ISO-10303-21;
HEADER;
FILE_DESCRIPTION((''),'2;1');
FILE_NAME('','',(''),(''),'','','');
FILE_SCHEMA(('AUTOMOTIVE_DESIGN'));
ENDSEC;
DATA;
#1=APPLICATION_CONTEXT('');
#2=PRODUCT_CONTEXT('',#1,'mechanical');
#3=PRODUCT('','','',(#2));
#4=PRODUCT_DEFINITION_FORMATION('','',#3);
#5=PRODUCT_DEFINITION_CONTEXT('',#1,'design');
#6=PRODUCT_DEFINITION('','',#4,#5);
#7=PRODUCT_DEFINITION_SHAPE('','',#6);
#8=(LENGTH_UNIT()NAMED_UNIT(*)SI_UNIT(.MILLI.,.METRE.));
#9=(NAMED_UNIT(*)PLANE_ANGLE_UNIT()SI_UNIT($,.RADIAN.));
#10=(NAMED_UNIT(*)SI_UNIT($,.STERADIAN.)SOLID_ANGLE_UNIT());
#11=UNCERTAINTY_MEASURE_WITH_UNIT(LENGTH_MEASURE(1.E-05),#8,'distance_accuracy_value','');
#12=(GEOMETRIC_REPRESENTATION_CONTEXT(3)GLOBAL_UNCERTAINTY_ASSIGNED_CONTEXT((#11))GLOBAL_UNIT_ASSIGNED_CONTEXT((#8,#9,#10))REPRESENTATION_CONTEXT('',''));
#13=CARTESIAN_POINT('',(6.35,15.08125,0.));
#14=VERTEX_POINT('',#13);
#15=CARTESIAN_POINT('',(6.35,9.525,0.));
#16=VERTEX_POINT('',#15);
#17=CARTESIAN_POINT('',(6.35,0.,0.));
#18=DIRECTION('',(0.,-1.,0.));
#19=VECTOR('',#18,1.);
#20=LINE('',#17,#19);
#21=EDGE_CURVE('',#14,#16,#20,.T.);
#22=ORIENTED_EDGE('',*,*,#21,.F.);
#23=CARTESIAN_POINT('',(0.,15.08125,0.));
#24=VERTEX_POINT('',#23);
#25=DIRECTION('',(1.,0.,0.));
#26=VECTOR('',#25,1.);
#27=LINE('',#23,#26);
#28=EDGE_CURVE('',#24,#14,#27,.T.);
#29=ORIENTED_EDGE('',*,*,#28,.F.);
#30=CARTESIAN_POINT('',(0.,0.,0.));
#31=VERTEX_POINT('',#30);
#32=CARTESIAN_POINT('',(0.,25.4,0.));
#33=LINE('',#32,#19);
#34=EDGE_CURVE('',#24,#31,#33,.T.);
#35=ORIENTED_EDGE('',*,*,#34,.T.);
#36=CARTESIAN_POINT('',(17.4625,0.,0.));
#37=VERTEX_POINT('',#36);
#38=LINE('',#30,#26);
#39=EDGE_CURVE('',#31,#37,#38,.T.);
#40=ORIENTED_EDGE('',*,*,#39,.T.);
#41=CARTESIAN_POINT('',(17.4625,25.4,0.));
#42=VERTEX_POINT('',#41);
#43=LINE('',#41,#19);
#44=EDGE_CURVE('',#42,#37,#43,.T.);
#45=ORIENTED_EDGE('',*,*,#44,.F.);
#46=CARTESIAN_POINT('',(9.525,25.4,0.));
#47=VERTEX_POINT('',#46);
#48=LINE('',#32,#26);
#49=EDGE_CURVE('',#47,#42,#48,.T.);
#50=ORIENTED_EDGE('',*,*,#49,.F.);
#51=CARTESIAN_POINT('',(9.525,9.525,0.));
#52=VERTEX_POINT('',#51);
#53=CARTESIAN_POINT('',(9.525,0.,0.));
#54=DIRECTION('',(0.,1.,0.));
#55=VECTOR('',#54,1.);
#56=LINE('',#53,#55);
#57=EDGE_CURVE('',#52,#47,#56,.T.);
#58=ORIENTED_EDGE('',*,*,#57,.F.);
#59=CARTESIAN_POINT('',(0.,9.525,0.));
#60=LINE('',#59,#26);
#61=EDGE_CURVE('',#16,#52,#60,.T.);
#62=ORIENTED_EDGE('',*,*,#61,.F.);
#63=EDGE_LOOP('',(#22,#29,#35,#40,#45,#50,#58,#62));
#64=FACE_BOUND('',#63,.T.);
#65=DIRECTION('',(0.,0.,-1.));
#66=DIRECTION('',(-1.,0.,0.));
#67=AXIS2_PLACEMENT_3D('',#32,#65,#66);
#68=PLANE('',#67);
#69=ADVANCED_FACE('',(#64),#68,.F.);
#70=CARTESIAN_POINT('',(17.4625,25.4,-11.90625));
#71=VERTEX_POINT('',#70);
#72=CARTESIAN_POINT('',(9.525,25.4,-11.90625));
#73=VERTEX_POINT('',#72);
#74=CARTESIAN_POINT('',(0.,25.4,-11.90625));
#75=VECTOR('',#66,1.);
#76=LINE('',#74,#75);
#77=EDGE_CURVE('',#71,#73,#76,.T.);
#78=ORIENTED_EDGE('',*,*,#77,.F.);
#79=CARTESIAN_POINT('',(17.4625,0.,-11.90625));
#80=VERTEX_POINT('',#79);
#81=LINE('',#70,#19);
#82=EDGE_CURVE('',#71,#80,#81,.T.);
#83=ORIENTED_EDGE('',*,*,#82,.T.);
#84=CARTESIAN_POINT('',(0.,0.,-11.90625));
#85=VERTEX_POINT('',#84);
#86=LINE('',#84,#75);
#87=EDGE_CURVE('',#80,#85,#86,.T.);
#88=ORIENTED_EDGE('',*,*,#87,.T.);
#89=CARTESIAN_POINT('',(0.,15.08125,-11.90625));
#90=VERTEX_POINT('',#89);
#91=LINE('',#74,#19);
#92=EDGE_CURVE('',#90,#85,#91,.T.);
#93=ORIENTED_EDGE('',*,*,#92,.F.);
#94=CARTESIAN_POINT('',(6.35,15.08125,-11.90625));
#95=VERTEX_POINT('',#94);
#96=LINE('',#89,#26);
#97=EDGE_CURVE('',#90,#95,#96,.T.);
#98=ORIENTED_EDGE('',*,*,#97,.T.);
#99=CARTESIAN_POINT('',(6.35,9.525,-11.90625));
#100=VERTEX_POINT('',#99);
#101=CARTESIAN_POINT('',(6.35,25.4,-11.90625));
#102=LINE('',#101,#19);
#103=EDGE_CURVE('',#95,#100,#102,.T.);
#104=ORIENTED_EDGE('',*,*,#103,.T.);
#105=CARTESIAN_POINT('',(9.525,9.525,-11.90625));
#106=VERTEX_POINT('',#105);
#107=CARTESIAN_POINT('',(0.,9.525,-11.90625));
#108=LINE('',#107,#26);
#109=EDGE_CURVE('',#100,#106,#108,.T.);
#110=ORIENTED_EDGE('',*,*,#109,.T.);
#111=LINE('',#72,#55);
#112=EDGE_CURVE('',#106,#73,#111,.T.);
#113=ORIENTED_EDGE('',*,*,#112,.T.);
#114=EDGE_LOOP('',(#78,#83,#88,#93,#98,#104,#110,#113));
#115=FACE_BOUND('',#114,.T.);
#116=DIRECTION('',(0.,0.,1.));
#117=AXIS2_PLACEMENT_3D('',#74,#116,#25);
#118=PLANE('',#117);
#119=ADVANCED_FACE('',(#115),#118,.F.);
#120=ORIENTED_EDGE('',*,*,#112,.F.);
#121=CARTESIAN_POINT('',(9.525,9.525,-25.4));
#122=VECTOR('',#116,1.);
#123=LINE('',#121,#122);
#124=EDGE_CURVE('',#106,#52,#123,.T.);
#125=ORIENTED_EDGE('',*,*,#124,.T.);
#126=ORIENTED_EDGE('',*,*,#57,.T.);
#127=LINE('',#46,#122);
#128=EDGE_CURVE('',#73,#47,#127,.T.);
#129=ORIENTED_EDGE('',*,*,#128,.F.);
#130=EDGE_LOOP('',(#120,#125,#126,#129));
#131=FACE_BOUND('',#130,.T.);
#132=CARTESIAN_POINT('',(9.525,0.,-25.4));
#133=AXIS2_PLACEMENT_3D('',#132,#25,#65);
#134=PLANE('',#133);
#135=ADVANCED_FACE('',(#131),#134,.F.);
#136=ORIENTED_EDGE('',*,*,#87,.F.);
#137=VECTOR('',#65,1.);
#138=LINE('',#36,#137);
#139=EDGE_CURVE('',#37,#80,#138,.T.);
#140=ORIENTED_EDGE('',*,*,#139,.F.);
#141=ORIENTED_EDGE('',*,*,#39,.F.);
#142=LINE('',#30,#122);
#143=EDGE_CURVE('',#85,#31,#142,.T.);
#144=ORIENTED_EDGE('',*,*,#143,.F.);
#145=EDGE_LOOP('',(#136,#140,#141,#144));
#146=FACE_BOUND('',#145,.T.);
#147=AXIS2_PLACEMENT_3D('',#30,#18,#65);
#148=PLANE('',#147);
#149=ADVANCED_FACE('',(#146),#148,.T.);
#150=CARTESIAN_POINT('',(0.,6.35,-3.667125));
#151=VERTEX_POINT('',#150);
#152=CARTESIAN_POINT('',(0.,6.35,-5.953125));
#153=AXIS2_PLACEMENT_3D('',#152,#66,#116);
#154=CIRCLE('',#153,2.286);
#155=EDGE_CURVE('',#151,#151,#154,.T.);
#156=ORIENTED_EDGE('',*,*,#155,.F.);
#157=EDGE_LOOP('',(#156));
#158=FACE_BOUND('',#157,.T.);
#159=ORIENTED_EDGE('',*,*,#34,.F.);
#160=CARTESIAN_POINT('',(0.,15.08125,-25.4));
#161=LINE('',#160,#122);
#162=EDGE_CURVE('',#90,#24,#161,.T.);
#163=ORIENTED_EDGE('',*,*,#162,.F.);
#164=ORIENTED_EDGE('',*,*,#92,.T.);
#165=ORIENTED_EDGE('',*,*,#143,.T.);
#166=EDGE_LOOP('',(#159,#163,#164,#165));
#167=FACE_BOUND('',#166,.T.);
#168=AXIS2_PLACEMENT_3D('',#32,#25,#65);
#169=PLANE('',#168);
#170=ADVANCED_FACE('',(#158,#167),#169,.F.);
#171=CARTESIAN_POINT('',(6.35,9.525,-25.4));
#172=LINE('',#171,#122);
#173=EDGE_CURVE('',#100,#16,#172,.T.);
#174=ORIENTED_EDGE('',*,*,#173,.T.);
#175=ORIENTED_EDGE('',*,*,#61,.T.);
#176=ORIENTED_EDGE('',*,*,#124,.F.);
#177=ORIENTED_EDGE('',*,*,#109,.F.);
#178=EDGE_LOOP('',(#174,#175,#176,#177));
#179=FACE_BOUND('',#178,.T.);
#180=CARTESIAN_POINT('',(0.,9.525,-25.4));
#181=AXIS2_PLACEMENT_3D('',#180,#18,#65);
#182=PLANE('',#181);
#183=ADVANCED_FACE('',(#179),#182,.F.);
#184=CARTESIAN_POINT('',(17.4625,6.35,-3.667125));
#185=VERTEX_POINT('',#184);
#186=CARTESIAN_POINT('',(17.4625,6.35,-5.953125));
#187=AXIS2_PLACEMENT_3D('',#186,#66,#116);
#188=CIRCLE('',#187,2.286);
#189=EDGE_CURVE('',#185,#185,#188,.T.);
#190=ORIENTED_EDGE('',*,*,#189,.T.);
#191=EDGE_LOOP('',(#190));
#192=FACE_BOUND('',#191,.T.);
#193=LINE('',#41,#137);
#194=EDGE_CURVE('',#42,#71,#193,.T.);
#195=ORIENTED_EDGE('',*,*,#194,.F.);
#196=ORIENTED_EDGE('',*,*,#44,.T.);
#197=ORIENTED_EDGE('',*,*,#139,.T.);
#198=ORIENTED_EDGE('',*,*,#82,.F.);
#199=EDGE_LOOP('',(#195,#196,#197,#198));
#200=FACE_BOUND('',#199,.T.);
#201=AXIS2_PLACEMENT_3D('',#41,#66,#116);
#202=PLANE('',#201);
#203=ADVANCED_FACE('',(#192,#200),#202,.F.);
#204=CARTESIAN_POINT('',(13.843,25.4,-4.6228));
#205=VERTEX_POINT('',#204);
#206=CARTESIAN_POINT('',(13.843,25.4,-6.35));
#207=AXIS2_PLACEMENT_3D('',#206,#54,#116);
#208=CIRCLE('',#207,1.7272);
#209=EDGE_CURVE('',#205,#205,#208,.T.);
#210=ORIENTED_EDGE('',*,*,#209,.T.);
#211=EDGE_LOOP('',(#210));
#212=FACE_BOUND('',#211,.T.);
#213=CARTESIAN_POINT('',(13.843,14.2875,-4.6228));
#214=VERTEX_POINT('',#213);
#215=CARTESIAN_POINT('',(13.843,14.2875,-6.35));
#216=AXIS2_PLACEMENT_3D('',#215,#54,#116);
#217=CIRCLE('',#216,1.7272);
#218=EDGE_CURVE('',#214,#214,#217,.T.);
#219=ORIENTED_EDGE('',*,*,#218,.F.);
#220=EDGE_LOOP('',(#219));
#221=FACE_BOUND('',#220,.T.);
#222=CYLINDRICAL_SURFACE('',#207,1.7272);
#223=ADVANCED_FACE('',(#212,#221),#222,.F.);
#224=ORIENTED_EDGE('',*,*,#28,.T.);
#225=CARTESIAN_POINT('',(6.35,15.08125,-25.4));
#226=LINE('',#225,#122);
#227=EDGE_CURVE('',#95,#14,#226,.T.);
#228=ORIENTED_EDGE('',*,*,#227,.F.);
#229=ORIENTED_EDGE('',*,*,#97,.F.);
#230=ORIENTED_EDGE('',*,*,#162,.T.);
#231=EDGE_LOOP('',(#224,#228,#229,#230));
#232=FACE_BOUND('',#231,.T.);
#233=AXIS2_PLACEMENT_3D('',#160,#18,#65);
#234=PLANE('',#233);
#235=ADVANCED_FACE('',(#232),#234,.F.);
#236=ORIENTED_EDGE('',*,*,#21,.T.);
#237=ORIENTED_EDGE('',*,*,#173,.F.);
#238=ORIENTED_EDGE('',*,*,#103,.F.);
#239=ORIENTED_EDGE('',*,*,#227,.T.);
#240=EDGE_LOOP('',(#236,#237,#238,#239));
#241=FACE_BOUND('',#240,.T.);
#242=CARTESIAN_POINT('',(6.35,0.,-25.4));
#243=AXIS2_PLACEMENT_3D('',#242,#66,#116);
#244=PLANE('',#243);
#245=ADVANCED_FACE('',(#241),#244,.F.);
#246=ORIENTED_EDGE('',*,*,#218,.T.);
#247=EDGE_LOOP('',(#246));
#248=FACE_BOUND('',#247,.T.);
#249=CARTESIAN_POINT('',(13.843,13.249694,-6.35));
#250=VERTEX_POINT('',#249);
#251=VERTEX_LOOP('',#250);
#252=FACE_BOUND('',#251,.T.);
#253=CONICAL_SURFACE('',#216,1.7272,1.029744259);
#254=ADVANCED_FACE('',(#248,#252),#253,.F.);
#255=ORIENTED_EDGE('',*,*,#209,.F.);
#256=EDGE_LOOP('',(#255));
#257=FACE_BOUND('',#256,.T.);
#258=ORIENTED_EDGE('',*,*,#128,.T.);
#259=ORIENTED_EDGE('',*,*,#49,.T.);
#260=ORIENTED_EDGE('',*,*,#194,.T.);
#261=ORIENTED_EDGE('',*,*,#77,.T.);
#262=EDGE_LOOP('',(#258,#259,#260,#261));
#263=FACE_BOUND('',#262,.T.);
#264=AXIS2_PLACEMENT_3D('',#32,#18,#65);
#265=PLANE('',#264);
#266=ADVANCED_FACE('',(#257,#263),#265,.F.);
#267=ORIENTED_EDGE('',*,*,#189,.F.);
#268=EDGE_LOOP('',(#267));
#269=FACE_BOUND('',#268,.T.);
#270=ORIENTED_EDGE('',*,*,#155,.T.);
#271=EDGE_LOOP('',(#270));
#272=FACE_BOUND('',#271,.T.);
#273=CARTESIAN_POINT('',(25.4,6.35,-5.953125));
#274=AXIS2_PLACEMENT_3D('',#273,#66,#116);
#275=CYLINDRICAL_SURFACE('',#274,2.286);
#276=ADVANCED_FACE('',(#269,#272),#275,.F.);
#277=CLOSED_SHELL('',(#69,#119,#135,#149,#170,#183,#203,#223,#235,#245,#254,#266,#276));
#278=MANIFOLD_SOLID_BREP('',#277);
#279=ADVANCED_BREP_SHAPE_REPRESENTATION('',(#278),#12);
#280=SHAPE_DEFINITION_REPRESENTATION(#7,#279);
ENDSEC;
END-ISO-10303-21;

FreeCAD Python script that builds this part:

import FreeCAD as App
import Part
import Sketcher

V = App.Vector
Q = App.Units.Quantity

doc = App.newDocument("Part")
body = doc.addObject("PartDesign::Body", "Body")

sketch1 = body.newObject("Sketcher::SketchObject", "Sketch")
sketch1.AttachmentSupport = (doc.getObject("XZ_Plane"), [""])
sketch1.MapMode = "FlatFace"
sketch1.addGeometry([
    Part.LineSegment(V(0, -11.90625, 0), V(0, 0, 0)),
    Part.LineSegment(V(0, 0, 0), V(17.4625, 0, 0)),
    Part.LineSegment(V(17.4625, 0, 0), V(17.4625, -11.90625, 0)),
    Part.LineSegment(V(17.4625, -11.90625, 0), V(0, -11.90625, 0)),
], False)
sketch1.addConstraint([
    Sketcher.Constraint("Coincident", 0, 2, 1, 1),
    Sketcher.Constraint("Coincident", 1, 2, 2, 1),
    Sketcher.Constraint("Coincident", 2, 2, 3, 1),
    Sketcher.Constraint("Coincident", 3, 2, 0, 1),
    Sketcher.Constraint("Vertical", 0),
    Sketcher.Constraint("Horizontal", 1),
    Sketcher.Constraint("Vertical", 2),
    Sketcher.Constraint("Horizontal", 3),
    Sketcher.Constraint("Coincident", 0, 2, -1, 1),
    Sketcher.Constraint("DistanceX", 1, 1, 1, 2, Q("0.6875 in")),
    Sketcher.Constraint("DistanceY", 0, 1, 0, 2, Q("0.46875 in")),
])
pad1 = body.newObject("PartDesign::Pad", "Pad")
pad1.Profile = sketch1
pad1.Length = Q("1 in")
pad1.Reversed = True

sketch2 = body.newObject("Sketcher::SketchObject", "Sketch001")
sketch2.AttachmentSupport = (doc.getObject("XY_Plane"), [""])
sketch2.MapMode = "FlatFace"
sketch2.addGeometry([
    Part.LineSegment(V(0, 15.08125, 0), V(6.35, 15.08125, 0)),
    Part.LineSegment(V(6.35, 15.08125, 0), V(6.35, 9.525, 0)),
    Part.LineSegment(V(6.35, 9.525, 0), V(9.525, 9.525, 0)),
    Part.LineSegment(V(9.525, 9.525, 0), V(9.525, 25.4, 0)),
    Part.LineSegment(V(9.525, 25.4, 0), V(0, 25.4, 0)),
    Part.LineSegment(V(0, 25.4, 0), V(0, 15.08125, 0)),
], False)
sketch2.addConstraint([
    Sketcher.Constraint("Coincident", 0, 2, 1, 1),
    Sketcher.Constraint("Coincident", 1, 2, 2, 1),
    Sketcher.Constraint("Coincident", 2, 2, 3, 1),
    Sketcher.Constraint("Coincident", 3, 2, 4, 1),
    Sketcher.Constraint("Coincident", 4, 2, 5, 1),
    Sketcher.Constraint("Coincident", 5, 2, 0, 1),
    Sketcher.Constraint("Horizontal", 0),
    Sketcher.Constraint("Vertical", 1),
    Sketcher.Constraint("Horizontal", 2),
    Sketcher.Constraint("Vertical", 3),
    Sketcher.Constraint("Horizontal", 4),
    Sketcher.Constraint("Vertical", 5),
    Sketcher.Constraint("PointOnObject", 4, 2, -2),
    Sketcher.Constraint("DistanceY", -1, 1, 3, 2, Q("1 in")),
    Sketcher.Constraint("DistanceX", 0, 1, 0, 2, Q("0.25 in")),
    Sketcher.Constraint("DistanceX", 2, 1, 2, 2, Q("0.125 in")),
    Sketcher.Constraint("DistanceY", 1, 2, 1, 1, Q("0.21875 in")),
    Sketcher.Constraint("DistanceY", 3, 1, 3, 2, Q("0.625 in")),
])
pocket1 = body.newObject("PartDesign::Pocket", "Pocket")
pocket1.Profile = sketch2
pocket1.Length = Q("1 in")

sketch3 = body.newObject("Sketcher::SketchObject", "Sketch002")
sketch3.AttachmentSupport = (doc.getObject("YZ_Plane"), [""])
sketch3.MapMode = "FlatFace"
sketch3.addGeometry(Part.Circle(V(6.35, -5.953125, 0), V(0, 0, 1), 2.286), False)
sketch3.addConstraint([
    Sketcher.Constraint("Diameter", 0, Q("0.18 in")),
    Sketcher.Constraint("DistanceX", -1, 1, 0, 3, Q("0.25 in")),
    Sketcher.Constraint("DistanceY", 0, 3, -1, 1, Q("0.234375 in")),
])
pocket2 = body.newObject("PartDesign::Pocket", "Pocket001")
pocket2.Profile = sketch3
pocket2.Length = Q("1 in")
pocket2.Reversed = True

sketch4 = body.newObject("Sketcher::SketchObject", "Sketch003")
sketch4.AttachmentSupport = (doc.getObject("XZ_Plane"), [""])
sketch4.MapMode = "FlatFace"
sketch4.AttachmentOffset = App.Placement(V(0, 0, -1 * 25.4), App.Rotation())
sketch4.addGeometry(Part.Circle(V(13.843, -6.35, 0), V(0, 0, 1), 1.7272), False)
sketch4.addConstraint([
    Sketcher.Constraint("Diameter", 0, Q("0.136 in")),
    Sketcher.Constraint("DistanceY", 0, 3, -1, 1, Q("0.25 in")),
    Sketcher.Constraint("DistanceX", -1, 1, 0, 3, Q("0.545 in")),
])
doc.recompute()
hole = body.newObject("PartDesign::Hole", "Hole")
hole.Profile = sketch4
hole.ThreadType = "None"
hole.Diameter = Q("0.136 in")
hole.DepthType = "Dimension"
hole.Depth = Q("0.4375 in")
hole.DrillPoint = "Angled"
hole.DrillPointAngle = 118
hole.Reversed = True

doc.recompute()
